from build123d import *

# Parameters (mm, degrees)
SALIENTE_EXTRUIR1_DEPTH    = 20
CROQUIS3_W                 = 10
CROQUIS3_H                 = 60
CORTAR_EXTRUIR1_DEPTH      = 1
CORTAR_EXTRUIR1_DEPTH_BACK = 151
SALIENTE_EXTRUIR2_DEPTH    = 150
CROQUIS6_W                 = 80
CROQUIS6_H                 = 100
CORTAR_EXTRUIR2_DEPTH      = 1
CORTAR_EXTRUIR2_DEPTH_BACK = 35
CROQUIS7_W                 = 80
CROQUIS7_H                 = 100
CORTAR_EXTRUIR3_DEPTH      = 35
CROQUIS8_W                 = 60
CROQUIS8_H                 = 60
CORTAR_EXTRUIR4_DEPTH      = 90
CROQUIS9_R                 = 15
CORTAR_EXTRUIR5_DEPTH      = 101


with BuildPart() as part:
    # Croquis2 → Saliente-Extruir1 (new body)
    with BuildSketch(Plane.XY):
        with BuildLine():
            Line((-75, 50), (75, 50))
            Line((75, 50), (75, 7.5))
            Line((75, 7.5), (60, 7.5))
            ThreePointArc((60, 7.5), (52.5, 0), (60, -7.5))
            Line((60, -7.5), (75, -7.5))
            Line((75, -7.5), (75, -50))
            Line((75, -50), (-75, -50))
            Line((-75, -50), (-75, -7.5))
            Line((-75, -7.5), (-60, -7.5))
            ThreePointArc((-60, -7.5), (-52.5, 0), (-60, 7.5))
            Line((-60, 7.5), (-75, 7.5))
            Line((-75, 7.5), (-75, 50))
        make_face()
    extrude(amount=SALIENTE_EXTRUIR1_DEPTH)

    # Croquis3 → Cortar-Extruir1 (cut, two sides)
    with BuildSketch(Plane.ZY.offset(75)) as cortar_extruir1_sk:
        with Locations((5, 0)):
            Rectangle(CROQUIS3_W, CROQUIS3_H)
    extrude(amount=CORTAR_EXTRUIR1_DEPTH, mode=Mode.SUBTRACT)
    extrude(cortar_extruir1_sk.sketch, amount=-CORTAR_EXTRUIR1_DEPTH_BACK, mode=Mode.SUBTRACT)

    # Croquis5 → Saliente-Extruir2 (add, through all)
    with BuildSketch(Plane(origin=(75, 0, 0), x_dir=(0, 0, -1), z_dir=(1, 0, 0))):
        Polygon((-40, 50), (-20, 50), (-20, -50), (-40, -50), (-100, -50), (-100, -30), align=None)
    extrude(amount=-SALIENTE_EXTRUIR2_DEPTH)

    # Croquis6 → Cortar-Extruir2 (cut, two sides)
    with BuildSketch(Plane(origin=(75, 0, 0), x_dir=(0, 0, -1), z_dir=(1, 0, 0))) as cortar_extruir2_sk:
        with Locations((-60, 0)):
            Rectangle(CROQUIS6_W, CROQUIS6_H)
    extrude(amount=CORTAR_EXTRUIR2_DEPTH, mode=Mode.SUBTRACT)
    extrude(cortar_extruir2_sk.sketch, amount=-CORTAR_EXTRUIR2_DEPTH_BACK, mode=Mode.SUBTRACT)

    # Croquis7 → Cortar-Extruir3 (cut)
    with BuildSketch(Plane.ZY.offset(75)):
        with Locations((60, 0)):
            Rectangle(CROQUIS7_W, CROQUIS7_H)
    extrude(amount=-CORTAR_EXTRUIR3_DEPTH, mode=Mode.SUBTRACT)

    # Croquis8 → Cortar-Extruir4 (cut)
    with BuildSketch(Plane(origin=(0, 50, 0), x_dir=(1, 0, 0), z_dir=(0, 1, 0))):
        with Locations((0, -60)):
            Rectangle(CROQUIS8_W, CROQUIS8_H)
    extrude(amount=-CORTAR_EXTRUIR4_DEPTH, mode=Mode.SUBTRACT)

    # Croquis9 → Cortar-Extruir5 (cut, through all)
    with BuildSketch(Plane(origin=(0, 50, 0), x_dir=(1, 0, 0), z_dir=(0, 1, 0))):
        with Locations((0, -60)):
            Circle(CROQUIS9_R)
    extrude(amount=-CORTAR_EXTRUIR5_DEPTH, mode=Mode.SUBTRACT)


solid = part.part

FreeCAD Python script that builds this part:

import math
import FreeCAD as App
import Part
import Sketcher
from FreeCAD import Vector
Q = App.Units.Quantity

doc = App.newDocument("Part")
body = doc.addObject("PartDesign::Body", "Body")

# Sketch on XY plane
sketch1 = body.newObject("Sketcher::SketchObject", "Sketch")
sketch1.AttachmentSupport = (doc.getObject("XY_Plane"), [""])
sketch1.MapMode = "FlatFace"
sketch1.addGeometry([
    Part.LineSegment(Vector(75, 50, 0), Vector(-75, 50, 0)),  # 0
    Part.LineSegment(Vector(-75, 50, 0), Vector(-75, 7.5, 0)),  # 1
    Part.LineSegment(Vector(-75, 7.5, 0), Vector(-60, 7.5, 0)),  # 2
    Part.ArcOfCircle(Part.Circle(Vector(-60, 0, 0), Vector(0, 0, 1), 7.5), math.radians(-90), math.radians(90)),  # 3
    Part.LineSegment(Vector(-60, -7.5, 0), Vector(-75, -7.5, 0)),  # 4
    Part.LineSegment(Vector(-75, -7.5, 0), Vector(-75, -50, 0)),  # 5
    Part.LineSegment(Vector(-75, -50, 0), Vector(75, -50, 0)),  # 6
    Part.LineSegment(Vector(75, -50, 0), Vector(75, -7.5, 0)),  # 7
    Part.LineSegment(Vector(75, -7.5, 0), Vector(60, -7.5, 0)),  # 8
    Part.ArcOfCircle(Part.Circle(Vector(60, 0, 0), Vector(0, 0, 1), 7.5), math.radians(90), math.radians(270)),  # 9
    Part.LineSegment(Vector(60, 7.5, 0), Vector(75, 7.5, 0)),  # 10
    Part.LineSegment(Vector(75, 7.5, 0), Vector(75, 50, 0)),  # 11
], False)
sketch1.addConstraint([
    Sketcher.Constraint("Coincident", 0, 2, 1, 1),
    Sketcher.Constraint("Coincident", 1, 2, 2, 1),
    Sketcher.Constraint("Tangent", 2, 2, 3, 2),
    Sketcher.Constraint("Tangent", 3, 1, 4, 1),
    Sketcher.Constraint("Coincident", 4, 2, 5, 1),
    Sketcher.Constraint("Coincident", 5, 2, 6, 1),
    Sketcher.Constraint("Coincident", 6, 2, 7, 1),
    Sketcher.Constraint("Coincident", 7, 2, 8, 1),
    Sketcher.Constraint("Tangent", 8, 2, 9, 2),
    Sketcher.Constraint("Tangent", 9, 1, 10, 1),
    Sketcher.Constraint("Coincident", 10, 2, 11, 1),
    Sketcher.Constraint("Coincident", 11, 2, 0, 1),
    Sketcher.Constraint("Horizontal", 0),
    Sketcher.Constraint("Vertical", 1),
    Sketcher.Constraint("Horizontal", 2),
    Sketcher.Constraint("Horizontal", 4),
    Sketcher.Constraint("Vertical", 5),
    Sketcher.Constraint("Horizontal", 6),
    Sketcher.Constraint("Vertical", 7),
    Sketcher.Constraint("Horizontal", 8),
    Sketcher.Constraint("Horizontal", 10),
    Sketcher.Constraint("Vertical", 11),
    Sketcher.Constraint("Equal", 3, 9),
    Sketcher.Constraint("Symmetric", 3, 3, 9, 3, -1, 1),
    Sketcher.Constraint("Symmetric", 0, 2, 6, 2, -1, 1),
    Sketcher.Constraint("Symmetric", 4, 2, 7, 2, -2),
    Sketcher.Constraint("Vertical", 7, 2, 10, 2),
    Sketcher.Constraint("Radius", 3, Q("7.5 mm")),
    Sketcher.Constraint("DistanceX", 0, 2, 0, 1, Q("150 mm")),
    Sketcher.Constraint("DistanceX", 2, 1, 2, 2, Q("15 mm")),
    Sketcher.Constraint("DistanceY", 1, 2, 1, 1, Q("42.5 mm")),
])
pad1 = body.newObject("PartDesign::Pad", "Pad")
pad1.Profile = sketch1
pad1.Length = 20

# Sketch on YZ plane
sketch2 = body.newObject("Sketcher::SketchObject", "Sketch001")
sketch2.AttachmentSupport = (doc.getObject("YZ_Plane"), [""])
sketch2.MapMode = "FlatFace"
sketch2.AttachmentOffset = App.Placement(Vector(0, 0, -75), App.Rotation())
sketch2.addGeometry([
    Part.LineSegment(Vector(30, 0, 0), Vector(-30, 0, 0)),
    Part.LineSegment(Vector(-30, 0, 0), Vector(-30, 10, 0)),
    Part.LineSegment(Vector(-30, 10, 0), Vector(30, 10, 0)),
    Part.LineSegment(Vector(30, 10, 0), Vector(30, 0, 0)),
], False)
sketch2.addConstraint([
    Sketcher.Constraint("Coincident", 0, 2, 1, 1),
    Sketcher.Constraint("Coincident", 1, 2, 2, 1),
    Sketcher.Constraint("Coincident", 2, 2, 3, 1),
    Sketcher.Constraint("Coincident", 3, 2, 0, 1),
    Sketcher.Constraint("Horizontal", 0),
    Sketcher.Constraint("Vertical", 1),
    Sketcher.Constraint("Horizontal", 2),
    Sketcher.Constraint("Vertical", 3),
    Sketcher.Constraint("Symmetric", 0, 2, 3, 2, -1, 1),
    Sketcher.Constraint("DistanceX", 0, 2, 0, 1, Q("60 mm")),
    Sketcher.Constraint("DistanceY", 1, 1, 1, 2, Q("10 mm")),
])
pocket1 = body.newObject("PartDesign::Pocket", "Pocket")
pocket1.Profile = sketch2
pocket1.Type = "ThroughAll"
pocket1.Midplane = True

# Sketch on YZ plane
sketch3 = body.newObject("Sketcher::SketchObject", "Sketch002")
sketch3.AttachmentSupport = (doc.getObject("YZ_Plane"), [""])
sketch3.MapMode = "FlatFace"
sketch3.AttachmentOffset = App.Placement(Vector(0, 0, 75), App.Rotation())
sketch3.addGeometry([
    Part.LineSegment(Vector(50, 20, 0), Vector(50, 40, 0)),  # 0
    Part.LineSegment(Vector(50, 40, 0), Vector(-30, 100, 0)),  # 1
    Part.LineSegment(Vector(-30, 100, 0), Vector(-50, 100, 0)),  # 2
    Part.LineSegment(Vector(-50, 100, 0), Vector(-50, 20, 0)),  # 3
    Part.LineSegment(Vector(-50, 20, 0), Vector(50, 20, 0)),  # 4
], False)
sketch3.addConstraint([
    Sketcher.Constraint("Coincident", 0, 2, 1, 1),
    Sketcher.Constraint("Coincident", 1, 2, 2, 1),
    Sketcher.Constraint("Coincident", 2, 2, 3, 1),
    Sketcher.Constraint("Coincident", 3, 2, 4, 1),
    Sketcher.Constraint("Coincident", 4, 2, 0, 1),
    Sketcher.Constraint("Vertical", 0),
    Sketcher.Constraint("Horizontal", 2),
    Sketcher.Constraint("Vertical", 3),
    Sketcher.Constraint("Horizontal", 4),
    Sketcher.Constraint("Equal", 2, 0),
    Sketcher.Constraint("DistanceX", 2, 2, 2, 1, Q("20 mm")),
    Sketcher.Constraint("DistanceX", 4, 1, 4, 2, Q("100 mm")),
    Sketcher.Constraint("DistanceY", 3, 2, 3, 1, Q("80 mm")),
    Sketcher.Constraint("DistanceX", -1, 1, 0, 2, Q("50 mm")),
    Sketcher.Constraint("DistanceY", -1, 1, 0, 2, Q("40 mm")),
])
pad2 = body.newObject("PartDesign::Pad", "Pad001")
pad2.Profile = sketch3
pad2.Length = 150
pad2.Reversed = True

# Sketch on YZ plane
sketch4 = body.newObject("Sketcher::SketchObject", "Sketch003")
sketch4.AttachmentSupport = (doc.getObject("YZ_Plane"), [""])
sketch4.MapMode = "FlatFace"
sketch4.AttachmentOffset = App.Placement(Vector(0, 0, 75), App.Rotation())
sketch4.addGeometry([
    Part.LineSegment(Vector(50, 100, 0), Vector(-50, 100, 0)),
    Part.LineSegment(Vector(-50, 100, 0), Vector(-50, 20, 0)),
    Part.LineSegment(Vector(-50, 20, 0), Vector(50, 20, 0)),
    Part.LineSegment(Vector(50, 20, 0), Vector(50, 100, 0)),
], False)
sketch4.addConstraint([
    Sketcher.Constraint("Coincident", 0, 2, 1, 1),
    Sketcher.Constraint("Coincident", 1, 2, 2, 1),
    Sketcher.Constraint("Coincident", 2, 2, 3, 1),
    Sketcher.Constraint("Coincident", 3, 2, 0, 1),
    Sketcher.Constraint("Horizontal", 0),
    Sketcher.Constraint("Vertical", 1),
    Sketcher.Constraint("Horizontal", 2),
    Sketcher.Constraint("Vertical", 3),
    Sketcher.Constraint("DistanceX", 0, 2, 0, 1, Q("100 mm")),
    Sketcher.Constraint("DistanceY", 1, 2, 1, 1, Q("80 mm")),
    Sketcher.Constraint("DistanceX", 0, 2, -1, 1, Q("50 mm")),
    Sketcher.Constraint("DistanceY", -1, 1, 0, 2, Q("100 mm")),
])
pocket2 = body.newObject("PartDesign::Pocket", "Pocket001")
pocket2.Profile = sketch4
pocket2.Type = "TwoLengths"
pocket2.Length = 1
pocket2.Length2 = 35
pocket2.Reversed = True

# Sketch on YZ plane
sketch5 = body.newObject("Sketcher::SketchObject", "Sketch004")
sketch5.AttachmentSupport = (doc.getObject("YZ_Plane"), [""])
sketch5.MapMode = "FlatFace"
sketch5.AttachmentOffset = App.Placement(Vector(0, 0, -75), App.Rotation())
sketch5.addGeometry([
    Part.LineSegment(Vector(50, 20, 0), Vector(-50, 20, 0)),
    Part.LineSegment(Vector(-50, 20, 0), Vector(-50, 100, 0)),
    Part.LineSegment(Vector(-50, 100, 0), Vector(50, 100, 0)),
    Part.LineSegment(Vector(50, 100, 0), Vector(50, 20, 0)),
], False)
sketch5.addConstraint([
    Sketcher.Constraint("Coincident", 0, 2, 1, 1),
    Sketcher.Constraint("Coincident", 1, 2, 2, 1),
    Sketcher.Constraint("Coincident", 2, 2, 3, 1),
    Sketcher.Constraint("Coincident", 3, 2, 0, 1),
    Sketcher.Constraint("Horizontal", 0),
    Sketcher.Constraint("Vertical", 1),
    Sketcher.Constraint("Horizontal", 2),
    Sketcher.Constraint("Vertical", 3),
    Sketcher.Constraint("DistanceX", 0, 2, 0, 1, Q("100 mm")),
    Sketcher.Constraint("DistanceY", 1, 1, 1, 2, Q("80 mm")),
    Sketcher.Constraint("DistanceX", 0, 2, -1, 1, Q("50 mm")),
    Sketcher.Constraint("DistanceY", -1, 1, 0, 2, Q("20 mm")),
])
pocket3 = body.newObject("PartDesign::Pocket", "Pocket002")
pocket3.Profile = sketch5
pocket3.Length = 35
pocket3.Reversed = True

# Sketch on XZ plane
sketch6 = body.newObject("Sketcher::SketchObject", "Sketch005")
sketch6.AttachmentSupport = (doc.getObject("XZ_Plane"), [""])
sketch6.MapMode = "FlatFace"
sketch6.AttachmentOffset = App.Placement(Vector(0, 0, -50), App.Rotation())
sketch6.addGeometry([
    Part.LineSegment(Vector(-30, 30, 0), Vector(-30, 90, 0)),
    Part.LineSegment(Vector(-30, 90, 0), Vector(30, 90, 0)),
    Part.LineSegment(Vector(30, 90, 0), Vector(30, 30, 0)),
    Part.LineSegment(Vector(30, 30, 0), Vector(-30, 30, 0)),
], False)
sketch6.addConstraint([
    Sketcher.Constraint("Coincident", 0, 2, 1, 1),
    Sketcher.Constraint("Coincident", 1, 2, 2, 1),
    Sketcher.Constraint("Coincident", 2, 2, 3, 1),
    Sketcher.Constraint("Coincident", 3, 2, 0, 1),
    Sketcher.Constraint("Vertical", 0),
    Sketcher.Constraint("Horizontal", 1),
    Sketcher.Constraint("Vertical", 2),
    Sketcher.Constraint("Horizontal", 3),
    Sketcher.Constraint("Equal", 3, 0),
    Sketcher.Constraint("DistanceX", 1, 1, 1, 2, Q("60 mm")),
    Sketcher.Constraint("DistanceX", 0, 2, -1, 1, Q("30 mm")),
    Sketcher.Constraint("DistanceY", -1, 1, 0, 2, Q("90 mm")),
])
pocket4 = body.newObject("PartDesign::Pocket", "Pocket003")
pocket4.Profile = sketch6
pocket4.Length = 90
pocket4.Reversed = True

# Sketch on XZ plane
sketch7 = body.newObject("Sketcher::SketchObject", "Sketch006")
sketch7.AttachmentSupport = (doc.getObject("XZ_Plane"), [""])
sketch7.MapMode = "FlatFace"
sketch7.AttachmentOffset = App.Placement(Vector(0, 0, -50), App.Rotation())
sketch7.addGeometry(Part.Circle(Vector(0, 60, 0), Vector(0, 0, 1), 15), False)
sketch7.addConstraint([
    Sketcher.Constraint("PointOnObject", 0, 3, -2),
    Sketcher.Constraint("Diameter", 0, Q("30 mm")),
    Sketcher.Constraint("DistanceY", -1, 1, 0, 3, Q("60 mm")),
])
pocket5 = body.newObject("PartDesign::Pocket", "Pocket004")
pocket5.Profile = sketch7
pocket5.Type = "ThroughAll"
pocket5.Reversed = True

doc.recompute()
